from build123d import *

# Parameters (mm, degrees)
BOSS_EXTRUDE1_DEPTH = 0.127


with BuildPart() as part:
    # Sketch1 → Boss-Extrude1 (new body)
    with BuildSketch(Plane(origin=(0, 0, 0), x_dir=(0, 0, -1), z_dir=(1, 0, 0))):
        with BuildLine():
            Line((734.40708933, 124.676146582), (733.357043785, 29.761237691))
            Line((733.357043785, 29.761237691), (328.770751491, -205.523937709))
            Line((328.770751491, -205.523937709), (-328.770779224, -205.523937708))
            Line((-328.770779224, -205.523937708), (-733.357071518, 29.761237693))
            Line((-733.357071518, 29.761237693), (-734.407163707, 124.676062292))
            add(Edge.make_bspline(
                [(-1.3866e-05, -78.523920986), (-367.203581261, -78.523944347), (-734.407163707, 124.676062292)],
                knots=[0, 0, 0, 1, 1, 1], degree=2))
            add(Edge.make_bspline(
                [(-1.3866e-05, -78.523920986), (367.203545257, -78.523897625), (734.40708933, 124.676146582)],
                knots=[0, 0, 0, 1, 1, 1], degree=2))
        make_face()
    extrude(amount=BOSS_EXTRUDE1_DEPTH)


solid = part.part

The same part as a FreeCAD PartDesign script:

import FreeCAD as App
import Part
import Sketcher
from FreeCAD import Vector
Q = App.Units.Quantity

doc = App.newDocument("Part")
body = doc.addObject("PartDesign::Body", "Body")

# Sketch on YZ plane
sketch1 = doc.addObject("Sketcher::SketchObject", "Sketch")
body.addObject(sketch1)
sketch1.AttachmentSupport = (doc.YZ_Plane, [""])
sketch1.MapMode = "FlatFace"
sketch1.addGeometry(Part.LineSegment(Vector(29.761238, -733.357044, 0), Vector(124.676147, -734.407089, 0)), False)
sketch1.addGeometry(Part.BSplineCurve([Vector(124.676147, -734.407089, 0), Vector(-281.723946, 0.000007, 0), Vector(124.676062, 734.407164, 0)], [3, 3], [0, 2.000000023], False, 2, [1, 1, 1], False), False)
sketch1.addGeometry(Part.LineSegment(Vector(124.676062, 734.407164, 0), Vector(29.761238, 733.357072, 0)), False)
sketch1.addGeometry(Part.LineSegment(Vector(29.761238, 733.357072, 0), Vector(-205.523938, 328.770779, 0)), False)
sketch1.addGeometry(Part.LineSegment(Vector(-205.523938, 328.770779, 0), Vector(-205.523938, -328.770751, 0)), False)
sketch1.addGeometry(Part.LineSegment(Vector(-205.523938, -328.770751, 0), Vector(29.761238, -733.357044, 0)), False)
sketch1.addConstraint(Sketcher.Constraint("Block", 1))
sketch1.addConstraint(Sketcher.Constraint("Coincident", 0, 2, 1, 1))
sketch1.addConstraint(Sketcher.Constraint("Coincident", 1, 2, 2, 1))
sketch1.addConstraint(Sketcher.Constraint("Coincident", 2, 2, 3, 1))
sketch1.addConstraint(Sketcher.Constraint("Coincident", 3, 2, 4, 1))
sketch1.addConstraint(Sketcher.Constraint("Coincident", 4, 2, 5, 1))
sketch1.addConstraint(Sketcher.Constraint("Coincident", 5, 2, 0, 1))
sketch1.addConstraint(Sketcher.Constraint("Vertical", 4))
sketch1.addConstraint(Sketcher.Constraint("Vertical", 2, 2, 5, 2))
sketch1.addConstraint(Sketcher.Constraint("Equal", 3, 5))
sketch1.addConstraint(Sketcher.Constraint("DistanceY", 4, 2, 4, 1, 657.541531))
sketch1.addConstraint(Sketcher.Constraint("DistanceY", -1, 1, 2, 2, 733.357072))
sketch1.addConstraint(Sketcher.Constraint("DistanceY", -1, 1, 3, 2, 328.770779))
sketch1.addConstraint(Sketcher.Constraint("DistanceX", 2, 2, 0, 2, 94.914909))
sketch1.addConstraint(Sketcher.Constraint("Distance", 3, 468.026903))
pad1 = doc.addObject("PartDesign::Pad", "Pad")
body.addObject(pad1)
pad1.Profile = sketch1
pad1.Length = Q("0.005 in")

doc.recompute()
